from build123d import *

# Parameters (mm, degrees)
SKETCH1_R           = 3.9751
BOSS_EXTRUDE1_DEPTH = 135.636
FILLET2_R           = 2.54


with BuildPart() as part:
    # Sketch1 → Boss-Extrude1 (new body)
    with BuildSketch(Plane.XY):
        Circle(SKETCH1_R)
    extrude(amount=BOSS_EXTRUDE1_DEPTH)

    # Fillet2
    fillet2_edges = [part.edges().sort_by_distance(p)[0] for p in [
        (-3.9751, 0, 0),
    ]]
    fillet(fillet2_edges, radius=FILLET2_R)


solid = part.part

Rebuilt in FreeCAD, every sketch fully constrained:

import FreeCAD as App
import Part
import Sketcher
Q = App.Units.Quantity


def edges_at(feature, points):
    """Names of the edges that pass closest to the given points."""
    edges = feature.Shape.Edges
    near = lambda p: min(range(len(edges)), key=lambda i: edges[i].distToShape(Part.Vertex(*p))[0])
    return sorted({f"Edge{near(p) + 1}" for p in points})

doc = App.newDocument("Part")
params = doc.addObject("Spreadsheet::Sheet", "Params")
for row, (alias, value) in enumerate([
    ("sketch1_diameter", "0.313 in"),
    ("pad1_length", "5.34 in"),
    ("fillet_radius", "0.1 in"),
], start=1):
    params.set(f"A{row}", alias)
    params.set(f"B{row}", "=" + value)
    params.setAlias(f"B{row}", alias)

body = doc.addObject("PartDesign::Body", "Body")

sketch1 = doc.addObject("Sketcher::SketchObject", "Sketch")
body.addObject(sketch1)
sketch1.AttachmentSupport = (doc.XY_Plane, [""])
sketch1.MapMode = "FlatFace"
sketch1.addGeometry(Part.Circle(App.Vector(0, 0, 0), App.Vector(0, 0, 1), 4), False)
sketch1.addConstraint([
    Sketcher.Constraint("Coincident", 0, 3, -1, 1),
    Sketcher.Constraint("Diameter", 0, Q("0.313 in")),
])
sketch1.setExpression("Constraints[1]", "Params.sketch1_diameter")
pad1 = doc.addObject("PartDesign::Pad", "Pad")
body.addObject(pad1)
pad1.Profile = sketch1
pad1.setExpression("Length", "Params.pad1_length")
doc.recompute()

fillet = doc.addObject("PartDesign::Fillet", "Fillet")
body.addObject(fillet)
fillet.Base = (pad1, edges_at(pad1, [(-3.975, 0, 0)]))
fillet.setExpression("Radius", "Params.fillet_radius")

doc.recompute()
